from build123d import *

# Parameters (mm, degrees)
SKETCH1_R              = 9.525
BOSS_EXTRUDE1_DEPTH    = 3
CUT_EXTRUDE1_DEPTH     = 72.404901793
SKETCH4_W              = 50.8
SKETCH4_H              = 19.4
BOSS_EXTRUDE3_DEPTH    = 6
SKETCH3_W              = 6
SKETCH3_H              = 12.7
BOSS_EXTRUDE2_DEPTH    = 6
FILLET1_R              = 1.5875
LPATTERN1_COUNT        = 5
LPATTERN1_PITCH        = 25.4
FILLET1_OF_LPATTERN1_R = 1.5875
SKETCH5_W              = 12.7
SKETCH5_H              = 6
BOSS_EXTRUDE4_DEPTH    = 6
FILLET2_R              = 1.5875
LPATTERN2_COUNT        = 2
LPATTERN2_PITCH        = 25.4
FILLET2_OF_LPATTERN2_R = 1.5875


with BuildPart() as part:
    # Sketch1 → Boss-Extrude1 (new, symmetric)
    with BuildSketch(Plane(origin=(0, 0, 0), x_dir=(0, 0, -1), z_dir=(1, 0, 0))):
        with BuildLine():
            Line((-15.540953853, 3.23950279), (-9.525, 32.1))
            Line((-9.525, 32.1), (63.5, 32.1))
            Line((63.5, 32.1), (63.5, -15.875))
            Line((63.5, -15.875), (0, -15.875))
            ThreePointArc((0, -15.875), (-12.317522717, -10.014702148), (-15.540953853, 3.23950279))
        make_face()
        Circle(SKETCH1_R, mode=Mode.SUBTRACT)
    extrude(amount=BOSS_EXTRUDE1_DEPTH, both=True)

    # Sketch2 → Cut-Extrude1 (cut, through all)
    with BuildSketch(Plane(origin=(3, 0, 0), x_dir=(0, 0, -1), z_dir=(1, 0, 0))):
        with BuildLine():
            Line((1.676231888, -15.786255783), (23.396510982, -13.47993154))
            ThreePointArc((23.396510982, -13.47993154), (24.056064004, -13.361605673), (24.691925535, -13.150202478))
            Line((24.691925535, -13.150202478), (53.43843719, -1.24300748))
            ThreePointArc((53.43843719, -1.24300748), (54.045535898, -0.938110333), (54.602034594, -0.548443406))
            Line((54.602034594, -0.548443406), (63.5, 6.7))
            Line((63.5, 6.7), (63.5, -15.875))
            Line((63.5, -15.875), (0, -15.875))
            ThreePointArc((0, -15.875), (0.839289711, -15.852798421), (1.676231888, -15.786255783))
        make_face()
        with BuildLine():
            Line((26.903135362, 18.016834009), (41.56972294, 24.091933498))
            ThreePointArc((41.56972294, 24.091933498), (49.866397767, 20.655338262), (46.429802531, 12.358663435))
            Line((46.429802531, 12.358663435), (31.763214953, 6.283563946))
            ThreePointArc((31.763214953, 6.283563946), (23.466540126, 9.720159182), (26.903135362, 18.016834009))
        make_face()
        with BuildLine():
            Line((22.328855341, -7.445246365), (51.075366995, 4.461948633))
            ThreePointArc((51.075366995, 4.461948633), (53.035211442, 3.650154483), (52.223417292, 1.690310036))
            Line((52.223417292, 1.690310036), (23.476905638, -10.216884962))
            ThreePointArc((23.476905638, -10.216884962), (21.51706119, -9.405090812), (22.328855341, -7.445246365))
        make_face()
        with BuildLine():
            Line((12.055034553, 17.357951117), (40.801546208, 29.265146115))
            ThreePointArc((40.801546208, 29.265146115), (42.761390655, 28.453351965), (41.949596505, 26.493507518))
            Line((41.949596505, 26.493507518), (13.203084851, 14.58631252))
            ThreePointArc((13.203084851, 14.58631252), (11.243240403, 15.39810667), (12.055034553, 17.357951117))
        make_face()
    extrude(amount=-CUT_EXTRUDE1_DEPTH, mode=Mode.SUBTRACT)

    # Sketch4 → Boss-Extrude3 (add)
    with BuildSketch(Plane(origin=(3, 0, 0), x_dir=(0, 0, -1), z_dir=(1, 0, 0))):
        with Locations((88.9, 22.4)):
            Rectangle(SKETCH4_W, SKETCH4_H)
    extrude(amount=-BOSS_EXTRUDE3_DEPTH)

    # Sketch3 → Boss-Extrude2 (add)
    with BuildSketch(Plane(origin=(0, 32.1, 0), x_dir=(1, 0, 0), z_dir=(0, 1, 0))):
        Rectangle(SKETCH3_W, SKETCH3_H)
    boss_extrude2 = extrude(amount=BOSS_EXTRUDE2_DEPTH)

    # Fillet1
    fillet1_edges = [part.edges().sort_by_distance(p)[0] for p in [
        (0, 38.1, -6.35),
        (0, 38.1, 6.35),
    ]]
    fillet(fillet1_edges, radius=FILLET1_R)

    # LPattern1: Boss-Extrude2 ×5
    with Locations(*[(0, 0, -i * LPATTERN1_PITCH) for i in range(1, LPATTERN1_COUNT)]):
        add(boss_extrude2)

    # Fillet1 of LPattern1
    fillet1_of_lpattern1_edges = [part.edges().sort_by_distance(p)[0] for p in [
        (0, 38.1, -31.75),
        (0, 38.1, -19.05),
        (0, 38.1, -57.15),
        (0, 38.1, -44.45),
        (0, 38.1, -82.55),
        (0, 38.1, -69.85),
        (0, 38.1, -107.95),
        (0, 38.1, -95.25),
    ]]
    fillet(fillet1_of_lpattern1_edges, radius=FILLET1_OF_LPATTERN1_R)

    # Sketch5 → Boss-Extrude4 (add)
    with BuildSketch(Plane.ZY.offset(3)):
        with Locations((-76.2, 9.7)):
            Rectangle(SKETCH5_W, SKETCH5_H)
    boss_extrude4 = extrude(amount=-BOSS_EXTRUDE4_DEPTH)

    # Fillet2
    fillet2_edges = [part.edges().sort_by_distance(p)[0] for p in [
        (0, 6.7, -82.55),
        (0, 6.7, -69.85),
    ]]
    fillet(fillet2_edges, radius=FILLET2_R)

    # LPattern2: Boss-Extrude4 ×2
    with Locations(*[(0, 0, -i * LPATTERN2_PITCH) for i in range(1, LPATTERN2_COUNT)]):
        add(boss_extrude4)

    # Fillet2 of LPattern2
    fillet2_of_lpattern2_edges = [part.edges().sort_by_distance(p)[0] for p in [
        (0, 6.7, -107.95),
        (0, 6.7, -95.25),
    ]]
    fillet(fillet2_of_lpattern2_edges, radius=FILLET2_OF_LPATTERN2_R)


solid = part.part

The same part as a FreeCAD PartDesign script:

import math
import FreeCAD as App
import Part
import Sketcher
from FreeCAD import Vector
Q = App.Units.Quantity


def edges_at(feature, points):
    """Names of the edges that pass closest to the given points."""
    edges = feature.Shape.Edges
    near = lambda p: min(range(len(edges)), key=lambda i: edges[i].distToShape(Part.Vertex(*p))[0])
    return sorted({f"Edge{near(p) + 1}" for p in points})

doc = App.newDocument("Part")
body = doc.addObject("PartDesign::Body", "Body")

sketch1 = body.newObject("Sketcher::SketchObject", "Sketch")
sketch1.AttachmentSupport = (doc.getObject("YZ_Plane"), [""])
sketch1.MapMode = "FlatFace"
sketch1.addGeometry([
    Part.LineSegment(Vector(32, 10, 0), Vector(3, 16, 0)),
    Part.ArcOfCircle(Part.Circle(Vector(0, 0, 0), Vector(0, 0, 1), 16), math.radians(78), math.radians(180)),
    Part.LineSegment(Vector(-16, 0, 0), Vector(-16, -64, 0)),
    Part.LineSegment(Vector(-16, -64, 0), Vector(32, -64, 0)),
    Part.LineSegment(Vector(32, -64, 0), Vector(32, 10, 0)),
    Part.Circle(Vector(0, 0, 0), Vector(0, 0, 1), 10),
], False)
sketch1.addConstraint([
    Sketcher.Constraint("Tangent", 0, 2, 1, 1),
    Sketcher.Constraint("Tangent", 1, 2, 2, 1),
    Sketcher.Constraint("Coincident", 2, 2, 3, 1),
    Sketcher.Constraint("Coincident", 3, 2, 4, 1),
    Sketcher.Constraint("Coincident", 4, 2, 0, 1),
    Sketcher.Constraint("Vertical", 2),
    Sketcher.Constraint("Horizontal", 3),
    Sketcher.Constraint("Vertical", 4),
    Sketcher.Constraint("Coincident", 1, 3, -1, 1),
    Sketcher.Constraint("Coincident", 5, 3, -1, 1),
    Sketcher.Constraint("Diameter", 5, Q("0.75 in")),
    Sketcher.Constraint("DistanceY", 2, 2, 2, 1, Q("2.5 in")),
    Sketcher.Constraint("Radius", 1, Q("0.625 in")),
    Sketcher.Constraint("DistanceY", 4, 1, 4, 2, Q("2.875 in")),
    Sketcher.Constraint("DistanceX", 3, 1, 3, 2, Q("47.975 mm")),
])
pad1 = body.newObject("PartDesign::Pad", "Pad")
pad1.Profile = sketch1
pad1.Length = 6
pad1.Midplane = True

sketch2 = body.newObject("Sketcher::SketchObject", "Sketch001")
sketch2.AttachmentSupport = (doc.getObject("YZ_Plane"), [""])
sketch2.MapMode = "FlatFace"
sketch2.AttachmentOffset = App.Placement(Vector(0, 0, 3), App.Rotation())
sketch2.addGeometry([
    Part.LineSegment(Vector(-13.5, -23.4, 0), Vector(-15.8, -1.7, 0)),
    Part.ArcOfCircle(Part.Circle(Vector(0, 0, 0), Vector(0, 0, 1), 15.9), math.radians(-180), math.radians(-173.94)),
    Part.LineSegment(Vector(-15.9, 0, 0), Vector(-15.9, -63.5, 0)),
    Part.LineSegment(Vector(-15.9, -63.5, 0), Vector(6.7, -63.5, 0)),
    Part.LineSegment(Vector(6.7, -63.5, 0), Vector(-0.5, -54.6, 0)),
    Part.ArcOfCircle(Part.Circle(Vector(3.1, -51.6, 0), Vector(0, 0, 1), 4.7), math.radians(-157.5), math.radians(-140.83)),
    Part.LineSegment(Vector(-1.2, -53.4, 0), Vector(-13.2, -24.7, 0)),
    Part.ArcOfCircle(Part.Circle(Vector(-8.8, -22.9, 0), Vector(0, 0, 1), 4.7), math.radians(-173.94), math.radians(-157.5)),
    Part.LineSegment(Vector(24.1, -41.6, 0), Vector(18, -26.9, 0)),
    Part.ArcOfCircle(Part.Circle(Vector(12.2, -29.3, 0), Vector(0, 0, 1), 6.3), math.radians(23), math.radians(202)),
    Part.LineSegment(Vector(6.3, -31.8, 0), Vector(12.4, -46.4, 0)),
    Part.ArcOfCircle(Part.Circle(Vector(18.2, -44, 0), Vector(0, 0, 1), 6.3), math.radians(-157), math.radians(22)),
    Part.LineSegment(Vector(4.5, -51.1, 0), Vector(-7.4, -22.3, 0)),
    Part.ArcOfCircle(Part.Circle(Vector(-8.8, -22.9, 0), Vector(0, 0, 1), 1.5), math.radians(22), math.radians(203)),
    Part.LineSegment(Vector(-10.2, -23.5, 0), Vector(1.7, -52.2, 0)),
    Part.ArcOfCircle(Part.Circle(Vector(3.1, -51.6, 0), Vector(0, 0, 1), 1.5), math.radians(-158), math.radians(23)),
    Part.LineSegment(Vector(29.3, -40.8, 0), Vector(17.4, -12.1, 0)),
    Part.ArcOfCircle(Part.Circle(Vector(16, -12.6, 0), Vector(0, 0, 1), 1.5), math.radians(23), math.radians(203)),
    Part.LineSegment(Vector(14.6, -13.2, 0), Vector(26.5, -41.9, 0)),
    Part.ArcOfCircle(Part.Circle(Vector(27.9, -41.4, 0), Vector(0, 0, 1), 1.5), math.radians(-158), math.radians(23)),
], False)
sketch2.addConstraint([
    Sketcher.Constraint("Tangent", 0, 2, 1, 2),
    Sketcher.Constraint("Tangent", 1, 1, 2, 1),
    Sketcher.Constraint("Coincident", 2, 2, 3, 1),
    Sketcher.Constraint("Coincident", 3, 2, 4, 1),
    Sketcher.Constraint("Tangent", 4, 2, 5, 2),
    Sketcher.Constraint("Tangent", 5, 1, 6, 1),
    Sketcher.Constraint("Tangent", 6, 2, 7, 2),
    Sketcher.Constraint("Tangent", 7, 1, 0, 1),
    Sketcher.Constraint("Tangent", 8, 2, 9, 1),
    Sketcher.Constraint("Tangent", 9, 2, 10, 1),
    Sketcher.Constraint("Tangent", 10, 2, 11, 1),
    Sketcher.Constraint("Tangent", 11, 2, 8, 1),
    Sketcher.Constraint("Tangent", 12, 2, 13, 1),
    Sketcher.Constraint("Tangent", 13, 2, 14, 1),
    Sketcher.Constraint("Tangent", 14, 2, 15, 1),
    Sketcher.Constraint("Tangent", 15, 2, 12, 1),
    Sketcher.Constraint("Tangent", 16, 2, 17, 1),
    Sketcher.Constraint("Tangent", 17, 2, 18, 1),
    Sketcher.Constraint("Tangent", 18, 2, 19, 1),
    Sketcher.Constraint("Tangent", 19, 2, 16, 1),
    Sketcher.Constraint("Vertical", 2),
    Sketcher.Constraint("Horizontal", 3),
    Sketcher.Constraint("Coincident", 1, 3, -1, 1),
    Sketcher.Constraint("Coincident", 13, 3, 7, 3),
    Sketcher.Constraint("Coincident", 15, 3, 5, 3),
    Sketcher.Constraint("Equal", 5, 7),
    Sketcher.Constraint("Equal", 9, 11),
    Sketcher.Constraint("Equal", 13, 15),
    Sketcher.Constraint("Equal", 15, 17),
    Sketcher.Constraint("Equal", 17, 19),
    Sketcher.Constraint("Parallel", 6, 8),
    Sketcher.Constraint("Parallel", 14, 16),
    Sketcher.Constraint("Equal", 14, 16),
    Sketcher.Constraint("Radius", 9, Q("0.25 in")),
    Sketcher.Constraint("DistanceY", 2, 2, 2, 1, Q("2.5 in")),
    Sketcher.Constraint("Radius", 1, Q("0.625 in")),
    Sketcher.Constraint("Angle", 6, Q("112.5 deg")),
    Sketcher.Constraint("Radius", 5, Q("4.675 mm")),
    Sketcher.Constraint("Radius", 13, Q("1.5 mm")),
    Sketcher.Constraint("Distance", 6, Q("1.225 in")),
    Sketcher.Constraint("Distance", 8, Q("0.625 in")),
    Sketcher.Constraint("DistanceX", 3, 1, 3, 2, Q("22.575 mm")),
    Sketcher.Constraint("DistanceX", 0, 2, 7, 1, Q("0.0908002 in")),
    Sketcher.Constraint("DistanceX", 17, 3, 8, 2, Q("0.0805001 in")),
    Sketcher.Constraint("DistanceX", -1, 1, 9, 3, Q("12.150199 mm")),
    Sketcher.Constraint("DistanceY", 8, 2, 16, 2, Q("14.848101 mm")),
    Sketcher.Constraint("Distance", 4, Q("11.47666 mm")),
    Sketcher.Constraint("DistanceY", 17, 3, -1, 1, Q("12.62906 mm")),
])
pocket1 = body.newObject("PartDesign::Pocket", "Pocket")
pocket1.Profile = sketch2
pocket1.Type = "ThroughAll"

sketch3 = body.newObject("Sketcher::SketchObject", "Sketch002")
sketch3.AttachmentSupport = (doc.getObject("YZ_Plane"), [""])
sketch3.MapMode = "FlatFace"
sketch3.AttachmentOffset = App.Placement(Vector(0, 0, 3), App.Rotation())
sketch3.addGeometry([
    Part.LineSegment(Vector(32, -64, 0), Vector(13, -64, 0)),
    Part.LineSegment(Vector(13, -64, 0), Vector(13, -114, 0)),
    Part.LineSegment(Vector(13, -114, 0), Vector(32, -114, 0)),
    Part.LineSegment(Vector(32, -114, 0), Vector(32, -64, 0)),
], False)
sketch3.addConstraint([
    Sketcher.Constraint("Coincident", 0, 2, 1, 1),
    Sketcher.Constraint("Coincident", 1, 2, 2, 1),
    Sketcher.Constraint("Coincident", 2, 2, 3, 1),
    Sketcher.Constraint("Coincident", 3, 2, 0, 1),
    Sketcher.Constraint("Horizontal", 0),
    Sketcher.Constraint("Vertical", 1),
    Sketcher.Constraint("Horizontal", 2),
    Sketcher.Constraint("Vertical", 3),
    Sketcher.Constraint("DistanceY", 1, 2, 1, 1, Q("2 in")),
    Sketcher.Constraint("DistanceX", -1, 1, 0, 2, Q("0.5 in")),
    Sketcher.Constraint("DistanceY", 0, 2, -1, 1, Q("2.5 in")),
    Sketcher.Constraint("DistanceX", 0, 2, 0, 1, Q("19.4 mm")),
])
pad2 = body.newObject("PartDesign::Pad", "Pad001")
pad2.Profile = sketch3
pad2.Length = 6
pad2.Reversed = True

sketch4 = body.newObject("Sketcher::SketchObject", "Sketch003")
sketch4.AttachmentSupport = (doc.getObject("XZ_Plane"), [""])
sketch4.MapMode = "FlatFace"
sketch4.AttachmentOffset = App.Placement(Vector(0, 0, -32.1), App.Rotation())
sketch4.addGeometry([
    Part.LineSegment(Vector(-3, -6, 0), Vector(-3, 6, 0)),
    Part.LineSegment(Vector(-3, 6, 0), Vector(3, 6, 0)),
    Part.LineSegment(Vector(3, 6, 0), Vector(3, -6, 0)),
    Part.LineSegment(Vector(3, -6, 0), Vector(-3, -6, 0)),
], False)
sketch4.addConstraint([
    Sketcher.Constraint("Coincident", 0, 2, 1, 1),
    Sketcher.Constraint("Coincident", 1, 2, 2, 1),
    Sketcher.Constraint("Coincident", 2, 2, 3, 1),
    Sketcher.Constraint("Coincident", 3, 2, 0, 1),
    Sketcher.Constraint("Vertical", 0),
    Sketcher.Constraint("Horizontal", 1),
    Sketcher.Constraint("Vertical", 2),
    Sketcher.Constraint("Horizontal", 3),
    Sketcher.Constraint("Symmetric", 0, 2, 2, 2, -1, 1),
    Sketcher.Constraint("DistanceY", 0, 1, 0, 2, Q("0.5 in")),
    Sketcher.Constraint("DistanceX", 1, 1, 1, 2, Q("6 mm")),
])
pad3 = body.newObject("PartDesign::Pad", "Pad002")
pad3.Profile = sketch4
pad3.Length = 6
pad3.Reversed = True
doc.recompute()

fillet = body.newObject("PartDesign::Fillet", "Fillet")
fillet.Base = (pad3, edges_at(pad3, [(0, 38.1, -6.35), (0, 38.1, 6.35)]))
fillet.Radius = Q("0.0625 in")
doc.recompute()

linearpattern = body.newObject("PartDesign::LinearPattern", "LinearPattern")
linearpattern.Originals = [pad3]
linearpattern.Direction = (doc.getObject("Z_Axis"), [""])
linearpattern.Mode = "offset"
linearpattern.Offset = Q("1 in")
linearpattern.Occurrences = 5
linearpattern.Reversed = True
body.Tip = linearpattern
doc.recompute()

fillet2 = body.newObject("PartDesign::Fillet", "Fillet001")
fillet2.Base = (linearpattern, edges_at(linearpattern, [
    (0, 38.1, -31.75),
    (0, 38.1, -19.05),
    (0, 38.1, -57.15),
    (0, 38.1, -44.45),
    (0, 38.1, -82.55),
    (0, 38.1, -69.85),
    (0, 38.1, -107.95),
    (0, 38.1, -95.25),
]))
fillet2.Radius = Q("0.0625 in")

sketch5 = body.newObject("Sketcher::SketchObject", "Sketch004")
sketch5.AttachmentSupport = (doc.getObject("YZ_Plane"), [""])
sketch5.MapMode = "FlatFace"
sketch5.AttachmentOffset = App.Placement(Vector(0, 0, -3), App.Rotation())
sketch5.addGeometry([
    Part.LineSegment(Vector(13, -83, 0), Vector(7, -83, 0)),
    Part.LineSegment(Vector(7, -83, 0), Vector(7, -70, 0)),
    Part.LineSegment(Vector(7, -70, 0), Vector(13, -70, 0)),
    Part.LineSegment(Vector(13, -70, 0), Vector(13, -83, 0)),
], False)
sketch5.addConstraint([
    Sketcher.Constraint("Coincident", 0, 2, 1, 1),
    Sketcher.Constraint("Coincident", 1, 2, 2, 1),
    Sketcher.Constraint("Coincident", 2, 2, 3, 1),
    Sketcher.Constraint("Coincident", 3, 2, 0, 1),
    Sketcher.Constraint("Horizontal", 0),
    Sketcher.Constraint("Vertical", 1),
    Sketcher.Constraint("Horizontal", 2),
    Sketcher.Constraint("Vertical", 3),
    Sketcher.Constraint("DistanceY", 1, 1, 1, 2, Q("0.5 in")),
    Sketcher.Constraint("DistanceX", -1, 1, 2, 2, Q("0.5 in")),
    Sketcher.Constraint("DistanceY", 0, 2, -1, 1, Q("3.25 in")),
    Sketcher.Constraint("DistanceX", 0, 2, 0, 1, Q("6 mm")),
])
pad4 = body.newObject("PartDesign::Pad", "Pad003")
pad4.Profile = sketch5
pad4.Length = 6
doc.recompute()

fillet3 = body.newObject("PartDesign::Fillet", "Fillet002")
fillet3.Base = (pad4, edges_at(pad4, [(0, 6.7, -82.55), (0, 6.7, -69.85)]))
fillet3.Radius = Q("0.0625 in")
doc.recompute()

linearpattern2 = body.newObject("PartDesign::LinearPattern", "LinearPattern001")
linearpattern2.Originals = [pad4]
linearpattern2.Direction = (doc.getObject("Z_Axis"), [""])
linearpattern2.Mode = "offset"
linearpattern2.Offset = Q("1 in")
linearpattern2.Occurrences = 2
linearpattern2.Reversed = True
body.Tip = linearpattern2
doc.recompute()

fillet4 = body.newObject("PartDesign::Fillet", "Fillet003")
fillet4.Base = (linearpattern2, edges_at(linearpattern2, [(0, 6.7, -107.95), (0, 6.7, -95.25)]))
fillet4.Radius = Q("0.0625 in")

doc.recompute()
